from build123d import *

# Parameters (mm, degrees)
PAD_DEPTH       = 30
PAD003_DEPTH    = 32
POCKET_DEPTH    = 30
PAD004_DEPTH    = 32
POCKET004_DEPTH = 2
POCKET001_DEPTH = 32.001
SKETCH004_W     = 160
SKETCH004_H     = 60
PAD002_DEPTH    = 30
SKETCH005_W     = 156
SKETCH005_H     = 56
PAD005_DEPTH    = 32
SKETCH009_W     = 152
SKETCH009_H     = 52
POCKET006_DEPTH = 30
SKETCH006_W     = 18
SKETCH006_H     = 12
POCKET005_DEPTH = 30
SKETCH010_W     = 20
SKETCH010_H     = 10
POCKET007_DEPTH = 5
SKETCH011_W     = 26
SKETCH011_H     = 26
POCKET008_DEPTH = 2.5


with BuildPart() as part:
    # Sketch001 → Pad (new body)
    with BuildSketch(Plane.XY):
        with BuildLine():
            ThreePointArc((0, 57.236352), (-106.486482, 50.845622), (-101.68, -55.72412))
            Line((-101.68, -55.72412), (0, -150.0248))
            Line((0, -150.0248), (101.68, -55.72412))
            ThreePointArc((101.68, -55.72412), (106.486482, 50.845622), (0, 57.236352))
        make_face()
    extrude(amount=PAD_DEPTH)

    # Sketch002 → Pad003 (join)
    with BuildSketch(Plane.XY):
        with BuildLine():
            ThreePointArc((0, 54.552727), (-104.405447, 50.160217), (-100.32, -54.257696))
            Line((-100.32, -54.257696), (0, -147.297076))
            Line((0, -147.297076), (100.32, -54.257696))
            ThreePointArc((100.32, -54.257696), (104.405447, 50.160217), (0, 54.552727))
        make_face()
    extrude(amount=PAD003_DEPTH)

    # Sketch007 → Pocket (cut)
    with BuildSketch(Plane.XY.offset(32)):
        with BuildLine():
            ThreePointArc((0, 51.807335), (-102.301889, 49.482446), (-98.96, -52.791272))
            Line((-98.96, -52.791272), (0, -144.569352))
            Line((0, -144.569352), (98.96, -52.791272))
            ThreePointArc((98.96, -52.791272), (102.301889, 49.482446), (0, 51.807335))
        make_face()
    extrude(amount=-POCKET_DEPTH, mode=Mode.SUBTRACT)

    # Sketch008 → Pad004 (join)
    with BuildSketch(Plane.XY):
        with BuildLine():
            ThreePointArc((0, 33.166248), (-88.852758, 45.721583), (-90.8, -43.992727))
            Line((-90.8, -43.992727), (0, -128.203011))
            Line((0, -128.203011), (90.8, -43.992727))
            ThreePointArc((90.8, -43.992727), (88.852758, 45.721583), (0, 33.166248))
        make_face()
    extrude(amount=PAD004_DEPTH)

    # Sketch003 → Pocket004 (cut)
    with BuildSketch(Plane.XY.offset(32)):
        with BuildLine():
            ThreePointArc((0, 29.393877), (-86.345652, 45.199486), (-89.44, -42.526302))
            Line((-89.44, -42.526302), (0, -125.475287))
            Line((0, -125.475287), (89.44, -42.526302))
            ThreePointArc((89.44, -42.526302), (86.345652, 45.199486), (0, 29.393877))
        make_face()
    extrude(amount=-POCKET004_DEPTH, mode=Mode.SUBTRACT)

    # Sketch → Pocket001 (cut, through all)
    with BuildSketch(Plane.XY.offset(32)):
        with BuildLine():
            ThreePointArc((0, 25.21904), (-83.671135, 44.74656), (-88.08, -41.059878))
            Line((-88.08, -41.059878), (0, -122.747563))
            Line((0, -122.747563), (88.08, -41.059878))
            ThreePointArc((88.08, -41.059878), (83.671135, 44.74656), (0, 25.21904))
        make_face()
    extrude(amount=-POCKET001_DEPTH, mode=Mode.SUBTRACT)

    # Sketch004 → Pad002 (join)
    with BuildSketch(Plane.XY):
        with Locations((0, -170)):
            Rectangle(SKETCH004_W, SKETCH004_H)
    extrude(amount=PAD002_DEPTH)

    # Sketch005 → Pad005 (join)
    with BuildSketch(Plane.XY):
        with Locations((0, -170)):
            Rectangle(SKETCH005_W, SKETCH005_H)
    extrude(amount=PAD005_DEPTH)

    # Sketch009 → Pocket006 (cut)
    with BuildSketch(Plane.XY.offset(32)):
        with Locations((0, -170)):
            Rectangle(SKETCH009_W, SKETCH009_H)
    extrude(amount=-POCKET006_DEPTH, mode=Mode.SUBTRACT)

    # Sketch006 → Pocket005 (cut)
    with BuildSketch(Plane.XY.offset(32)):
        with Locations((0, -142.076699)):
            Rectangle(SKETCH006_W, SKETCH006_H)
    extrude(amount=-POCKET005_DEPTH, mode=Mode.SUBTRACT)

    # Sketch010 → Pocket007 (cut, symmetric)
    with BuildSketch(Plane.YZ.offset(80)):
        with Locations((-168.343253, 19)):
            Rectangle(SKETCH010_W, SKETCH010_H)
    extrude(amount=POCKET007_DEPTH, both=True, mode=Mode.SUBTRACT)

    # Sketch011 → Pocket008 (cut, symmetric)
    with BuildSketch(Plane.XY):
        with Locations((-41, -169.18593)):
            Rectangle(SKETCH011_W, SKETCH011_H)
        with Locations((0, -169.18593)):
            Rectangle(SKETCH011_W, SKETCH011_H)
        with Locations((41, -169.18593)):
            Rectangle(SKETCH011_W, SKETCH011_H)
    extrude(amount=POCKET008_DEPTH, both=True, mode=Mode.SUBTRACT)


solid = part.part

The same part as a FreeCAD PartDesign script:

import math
import FreeCAD as App
import Part
import Sketcher
from FreeCAD import Vector


def add_polygon(sketch, points):
    """Adds a closed chain of lines whose ends are joined by coincident constraints."""
    first, n = sketch.GeometryCount, len(points)
    for a, b in zip(points, points[1:] + points[:1]):
        sketch.addGeometry(Part.LineSegment(App.Vector(*a, 0), App.Vector(*b, 0)), False)
    for i in range(n):
        sketch.addConstraint(Sketcher.Constraint("Coincident", first + i, 2, first + (i + 1) % n, 1))

doc = App.newDocument("Part")
body = doc.addObject("PartDesign::Body", "Body")

sketch1 = doc.addObject("Sketcher::SketchObject", "Sketch")
body.addObject(sketch1)
sketch1.AttachmentSupport = (doc.XY_Plane, [""])
sketch1.MapMode = "FlatFace"
sketch1.addGeometry([
    Part.ArcOfCircle(Part.Circle(Vector(-50, 0, 0), Vector(0, 0, 1), 76), math.radians(49), math.radians(227)),
    Part.LineSegment(Vector(-102, -56, 0), Vector(0, -150, 0)),
    Part.LineSegment(Vector(0, -150, 0), Vector(102, -56, 0)),
    Part.ArcOfCircle(Part.Circle(Vector(50, 0, 0), Vector(0, 0, 1), 76), math.radians(-47), math.radians(131)),
], False)
sketch1.addConstraint([
    Sketcher.Constraint("Tangent", 0, 2, 1, 1),
    Sketcher.Constraint("Coincident", 1, 2, 2, 1),
    Sketcher.Constraint("Tangent", 2, 2, 3, 1),
    Sketcher.Constraint("Coincident", 3, 2, 0, 1),
    Sketcher.Constraint("Equal", 0, 3),
    Sketcher.Constraint("Symmetric", 0, 3, 3, 3, -1, 1),
    Sketcher.Constraint("Symmetric", 0, 2, 2, 2, -2),
    Sketcher.Constraint("Radius", 0, 76.0),
    Sketcher.Constraint("DistanceX", 0, 3, -1, 1, 50.0),
    Sketcher.Constraint("DistanceX", 0, 2, -1, 1, 101.68),
])
pad1 = doc.addObject("PartDesign::Pad", "Pad")
body.addObject(pad1)
pad1.Profile = sketch1
pad1.Length = 30

sketch2 = doc.addObject("Sketcher::SketchObject", "Sketch001")
body.addObject(sketch2)
sketch2.AttachmentSupport = (doc.XY_Plane, [""])
sketch2.MapMode = "FlatFace"
sketch2.addGeometry([
    Part.ArcOfCircle(Part.Circle(Vector(-50, 0, 0), Vector(0, 0, 1), 74), math.radians(47), math.radians(227)),
    Part.LineSegment(Vector(-100, -54, 0), Vector(0, -147, 0)),
    Part.LineSegment(Vector(0, -147, 0), Vector(100, -54, 0)),
    Part.ArcOfCircle(Part.Circle(Vector(50, 0, 0), Vector(0, 0, 1), 74), math.radians(-47), math.radians(133)),
], False)
sketch2.addConstraint([
    Sketcher.Constraint("Tangent", 0, 2, 1, 1),
    Sketcher.Constraint("Coincident", 1, 2, 2, 1),
    Sketcher.Constraint("Tangent", 2, 2, 3, 1),
    Sketcher.Constraint("Coincident", 3, 2, 0, 1),
    Sketcher.Constraint("Equal", 0, 3),
    Sketcher.Constraint("Symmetric", 0, 3, 3, 3, -1, 1),
    Sketcher.Constraint("Symmetric", 0, 2, 2, 2, -2),
    Sketcher.Constraint("Radius", 0, 74.0),
    Sketcher.Constraint("DistanceX", 0, 3, -1, 1, 50.0),
    Sketcher.Constraint("DistanceX", 0, 2, -1, 1, 100.32),
])
pad2 = doc.addObject("PartDesign::Pad", "Pad001")
body.addObject(pad2)
pad2.Profile = sketch2
pad2.Length = 32

sketch3 = doc.addObject("Sketcher::SketchObject", "Sketch002")
body.addObject(sketch3)
sketch3.AttachmentSupport = (doc.XY_Plane, [""])
sketch3.MapMode = "FlatFace"
sketch3.AttachmentOffset = App.Placement(Vector(0, 0, 32), App.Rotation())
sketch3.addGeometry([
    Part.ArcOfCircle(Part.Circle(Vector(-50, 0, 0), Vector(0, 0, 1), 72), math.radians(46), math.radians(227)),
    Part.LineSegment(Vector(-99, -53, 0), Vector(0, -145, 0)),
    Part.LineSegment(Vector(0, -145, 0), Vector(99, -53, 0)),
    Part.ArcOfCircle(Part.Circle(Vector(50, 0, 0), Vector(0, 0, 1), 72), math.radians(-47), math.radians(134)),
], False)
sketch3.addConstraint([
    Sketcher.Constraint("Tangent", 0, 2, 1, 1),
    Sketcher.Constraint("Coincident", 1, 2, 2, 1),
    Sketcher.Constraint("Tangent", 2, 2, 3, 1),
    Sketcher.Constraint("Coincident", 3, 2, 0, 1),
    Sketcher.Constraint("Equal", 0, 3),
    Sketcher.Constraint("Symmetric", 0, 3, 3, 3, -1, 1),
    Sketcher.Constraint("Symmetric", 0, 2, 2, 2, -2),
    Sketcher.Constraint("Radius", 0, 72.0),
    Sketcher.Constraint("DistanceX", 0, 3, -1, 1, 50.0),
    Sketcher.Constraint("DistanceX", 0, 2, -1, 1, 98.96),
])
pocket1 = doc.addObject("PartDesign::Pocket", "Pocket")
body.addObject(pocket1)
pocket1.Profile = sketch3
pocket1.Length = 30

sketch4 = doc.addObject("Sketcher::SketchObject", "Sketch003")
body.addObject(sketch4)
sketch4.AttachmentSupport = (doc.XY_Plane, [""])
sketch4.MapMode = "FlatFace"
sketch4.addGeometry([
    Part.ArcOfCircle(Part.Circle(Vector(-50, 0, 0), Vector(0, 0, 1), 60), math.radians(34), math.radians(227)),
    Part.LineSegment(Vector(-91, -44, 0), Vector(0, -128, 0)),
    Part.LineSegment(Vector(0, -128, 0), Vector(91, -44, 0)),
    Part.ArcOfCircle(Part.Circle(Vector(50, 0, 0), Vector(0, 0, 1), 60), math.radians(-47), math.radians(146)),
], False)
sketch4.addConstraint([
    Sketcher.Constraint("Tangent", 0, 2, 1, 1),
    Sketcher.Constraint("Coincident", 1, 2, 2, 1),
    Sketcher.Constraint("Tangent", 2, 2, 3, 1),
    Sketcher.Constraint("Coincident", 3, 2, 0, 1),
    Sketcher.Constraint("Equal", 0, 3),
    Sketcher.Constraint("Symmetric", 0, 3, 3, 3, -1, 1),
    Sketcher.Constraint("Symmetric", 0, 2, 2, 2, -2),
    Sketcher.Constraint("Radius", 0, 60.0),
    Sketcher.Constraint("DistanceX", 0, 3, -1, 1, 50.0),
    Sketcher.Constraint("DistanceX", 0, 2, -1, 1, 90.8),
])
pad3 = doc.addObject("PartDesign::Pad", "Pad002")
body.addObject(pad3)
pad3.Profile = sketch4
pad3.Length = 32

sketch5 = doc.addObject("Sketcher::SketchObject", "Sketch004")
body.addObject(sketch5)
sketch5.AttachmentSupport = (doc.XY_Plane, [""])
sketch5.MapMode = "FlatFace"
sketch5.AttachmentOffset = App.Placement(Vector(0, 0, 32), App.Rotation())
sketch5.addGeometry([
    Part.ArcOfCircle(Part.Circle(Vector(-50, 0, 0), Vector(0, 0, 1), 58), math.radians(30), math.radians(227)),
    Part.LineSegment(Vector(-89, -43, 0), Vector(0, -125, 0)),
    Part.LineSegment(Vector(0, -125, 0), Vector(89, -43, 0)),
    Part.ArcOfCircle(Part.Circle(Vector(50, 0, 0), Vector(0, 0, 1), 58), math.radians(-47), math.radians(150)),
], False)
sketch5.addConstraint([
    Sketcher.Constraint("Tangent", 0, 2, 1, 1),
    Sketcher.Constraint("Coincident", 1, 2, 2, 1),
    Sketcher.Constraint("Tangent", 2, 2, 3, 1),
    Sketcher.Constraint("Coincident", 3, 2, 0, 1),
    Sketcher.Constraint("Equal", 0, 3),
    Sketcher.Constraint("Symmetric", 0, 3, 3, 3, -1, 1),
    Sketcher.Constraint("Symmetric", 0, 2, 2, 2, -2),
    Sketcher.Constraint("Radius", 0, 58.0),
    Sketcher.Constraint("DistanceX", 0, 3, -1, 1, 50.0),
    Sketcher.Constraint("DistanceX", 0, 2, -1, 1, 89.44),
])
pocket2 = doc.addObject("PartDesign::Pocket", "Pocket001")
body.addObject(pocket2)
pocket2.Profile = sketch5
pocket2.Length = 2

sketch6 = doc.addObject("Sketcher::SketchObject", "Sketch005")
body.addObject(sketch6)
sketch6.AttachmentSupport = (doc.XY_Plane, [""])
sketch6.MapMode = "FlatFace"
sketch6.AttachmentOffset = App.Placement(Vector(0, 0, 32), App.Rotation())
sketch6.addGeometry([
    Part.ArcOfCircle(Part.Circle(Vector(-50, 0, 0), Vector(0, 0, 1), 56), math.radians(27), math.radians(227)),
    Part.LineSegment(Vector(-88, -41, 0), Vector(0, -123, 0)),
    Part.LineSegment(Vector(0, -123, 0), Vector(88, -41, 0)),
    Part.ArcOfCircle(Part.Circle(Vector(50, 0, 0), Vector(0, 0, 1), 56), math.radians(-47), math.radians(153)),
], False)
sketch6.addConstraint([
    Sketcher.Constraint("Tangent", 0, 2, 1, 1),
    Sketcher.Constraint("Coincident", 1, 2, 2, 1),
    Sketcher.Constraint("Tangent", 2, 2, 3, 1),
    Sketcher.Constraint("Coincident", 3, 2, 0, 1),
    Sketcher.Constraint("Equal", 0, 3),
    Sketcher.Constraint("Symmetric", 0, 3, 3, 3, -1, 1),
    Sketcher.Constraint("Symmetric", 0, 2, 2, 2, -2),
    Sketcher.Constraint("Radius", 0, 56.0),
    Sketcher.Constraint("DistanceX", 0, 3, -1, 1, 50.0),
    Sketcher.Constraint("DistanceX", 0, 2, -1, 1, 88.08),
])
pocket3 = doc.addObject("PartDesign::Pocket", "Pocket002")
body.addObject(pocket3)
pocket3.Profile = sketch6
pocket3.Type = "ThroughAll"

sketch7 = doc.addObject("Sketcher::SketchObject", "Sketch006")
body.addObject(sketch7)
sketch7.AttachmentSupport = (doc.XY_Plane, [""])
sketch7.MapMode = "FlatFace"
add_polygon(sketch7, [(-80, -140), (-80, -200), (80, -200), (80, -140)])
sketch7.addConstraint([
    Sketcher.Constraint("Vertical", 0),
    Sketcher.Constraint("Horizontal", 1),
    Sketcher.Constraint("Vertical", 2),
    Sketcher.Constraint("Horizontal", 3),
    Sketcher.Constraint("DistanceX", 1, 1, 1, 2, 160.0),
    Sketcher.Constraint("DistanceY", 0, 2, 0, 1, 60.0),
    Sketcher.Constraint("DistanceX", 0, 2, -1, 1, 80.0),
    Sketcher.Constraint("DistanceY", 0, 2, -1, 1, 200.0),
])
pad4 = doc.addObject("PartDesign::Pad", "Pad003")
body.addObject(pad4)
pad4.Profile = sketch7
pad4.Length = 30

sketch8 = doc.addObject("Sketcher::SketchObject", "Sketch007")
body.addObject(sketch8)
sketch8.AttachmentSupport = (doc.XY_Plane, [""])
sketch8.MapMode = "FlatFace"
add_polygon(sketch8, [(-78, -142), (-78, -198), (78, -198), (78, -142)])
sketch8.addConstraint([
    Sketcher.Constraint("Vertical", 0),
    Sketcher.Constraint("Horizontal", 1),
    Sketcher.Constraint("Vertical", 2),
    Sketcher.Constraint("Horizontal", 3),
    Sketcher.Constraint("DistanceX", 1, 1, 1, 2, 156.0),
    Sketcher.Constraint("DistanceY", 0, 2, 0, 1, 56.0),
    Sketcher.Constraint("DistanceX", 0, 2, -1, 1, 78.0),
    Sketcher.Constraint("DistanceY", 0, 2, -1, 1, 198.0),
])
pad5 = doc.addObject("PartDesign::Pad", "Pad004")
body.addObject(pad5)
pad5.Profile = sketch8
pad5.Length = 32

sketch9 = doc.addObject("Sketcher::SketchObject", "Sketch008")
body.addObject(sketch9)
sketch9.AttachmentSupport = (doc.XY_Plane, [""])
sketch9.MapMode = "FlatFace"
sketch9.AttachmentOffset = App.Placement(Vector(0, 0, 32), App.Rotation())
add_polygon(sketch9, [(-76, -144), (-76, -196), (76, -196), (76, -144)])
sketch9.addConstraint([
    Sketcher.Constraint("Vertical", 0),
    Sketcher.Constraint("Horizontal", 1),
    Sketcher.Constraint("Vertical", 2),
    Sketcher.Constraint("Horizontal", 3),
    Sketcher.Constraint("DistanceX", 1, 1, 1, 2, 152.0),
    Sketcher.Constraint("DistanceY", 0, 2, 0, 1, 52.0),
    Sketcher.Constraint("DistanceX", 0, 2, -1, 1, 76.0),
    Sketcher.Constraint("DistanceY", 0, 2, -1, 1, 196.0),
])
pocket4 = doc.addObject("PartDesign::Pocket", "Pocket003")
body.addObject(pocket4)
pocket4.Profile = sketch9
pocket4.Length = 30

sketch10 = doc.addObject("Sketcher::SketchObject", "Sketch009")
body.addObject(sketch10)
sketch10.AttachmentSupport = (doc.XY_Plane, [""])
sketch10.MapMode = "FlatFace"
sketch10.AttachmentOffset = App.Placement(Vector(0, 0, 32), App.Rotation())
add_polygon(sketch10, [(-9, -136), (-9, -148), (9, -148), (9, -136)])
sketch10.addConstraint([
    Sketcher.Constraint("Vertical", 0),
    Sketcher.Constraint("Horizontal", 1),
    Sketcher.Constraint("Vertical", 2),
    Sketcher.Constraint("Horizontal", 3),
    Sketcher.Constraint("DistanceX", 1, 1, 1, 2, 18.0),
    Sketcher.Constraint("DistanceY", 0, 2, 0, 1, 12.0),
    Sketcher.Constraint("DistanceX", 0, 2, -1, 1, 9.0),
    Sketcher.Constraint("DistanceY", 0, 2, -1, 1, 148.076699),
])
pocket5 = doc.addObject("PartDesign::Pocket", "Pocket004")
body.addObject(pocket5)
pocket5.Profile = sketch10
pocket5.Length = 30

sketch11 = doc.addObject("Sketcher::SketchObject", "Sketch010")
body.addObject(sketch11)
sketch11.AttachmentSupport = (doc.YZ_Plane, [""])
sketch11.MapMode = "FlatFace"
sketch11.AttachmentOffset = App.Placement(Vector(0, 0, 80), App.Rotation())
add_polygon(sketch11, [(-178, 24), (-178, 14), (-158, 14), (-158, 24)])
sketch11.addConstraint([
    Sketcher.Constraint("Vertical", 0),
    Sketcher.Constraint("Horizontal", 1),
    Sketcher.Constraint("Vertical", 2),
    Sketcher.Constraint("Horizontal", 3),
    Sketcher.Constraint("DistanceX", 1, 1, 1, 2, 20.0),
    Sketcher.Constraint("DistanceY", 0, 2, 0, 1, 10.0),
    Sketcher.Constraint("DistanceY", -1, 1, 0, 2, 14.0),
    Sketcher.Constraint("DistanceX", 0, 2, -1, 1, 178.343253),
])
pocket6 = doc.addObject("PartDesign::Pocket", "Pocket005")
body.addObject(pocket6)
pocket6.Profile = sketch11
pocket6.Length = 10
pocket6.Midplane = True

sketch12 = doc.addObject("Sketcher::SketchObject", "Sketch011")
body.addObject(sketch12)
sketch12.AttachmentSupport = (doc.XY_Plane, [""])
sketch12.MapMode = "FlatFace"
add_polygon(sketch12, [(-54, -156), (-54, -182), (-28, -182), (-28, -156)])
add_polygon(sketch12, [(-13, -156), (-13, -182), (13, -182), (13, -156)])
add_polygon(sketch12, [(28, -156), (28, -182), (54, -182), (54, -156)])
sketch12.addConstraint([
    Sketcher.Constraint("Vertical", 0),
    Sketcher.Constraint("Horizontal", 1),
    Sketcher.Constraint("Vertical", 2),
    Sketcher.Constraint("Horizontal", 3),
    Sketcher.Constraint("Vertical", 4),
    Sketcher.Constraint("Horizontal", 5),
    Sketcher.Constraint("Vertical", 6),
    Sketcher.Constraint("Horizontal", 7),
    Sketcher.Constraint("Vertical", 8),
    Sketcher.Constraint("Horizontal", 9),
    Sketcher.Constraint("Vertical", 10),
    Sketcher.Constraint("Horizontal", 11),
    Sketcher.Constraint("Symmetric", 1, 2, 8, 2, -2),
    Sketcher.Constraint("Symmetric", 3, 2, 10, 2, -2),
    Sketcher.Constraint("Horizontal", 1, 2, 4, 2),
    Sketcher.Constraint("Horizontal", 3, 2, 6, 2),
    Sketcher.Constraint("Equal", 3, 5),
    Sketcher.Constraint("Equal", 11, 0),
    Sketcher.Constraint("DistanceX", 1, 1, 1, 2, 26.0),
    Sketcher.Constraint("DistanceX", 0, 2, -1, 1, 54.0),
    Sketcher.Constraint("DistanceX", 4, 2, -1, 1, 13.0),
    Sketcher.Constraint("DistanceY", 0, 2, -1, 1, 182.18593),
])
pocket7 = doc.addObject("PartDesign::Pocket", "Pocket006")
body.addObject(pocket7)
pocket7.Profile = sketch12
pocket7.Length = 5
pocket7.Midplane = True

doc.recompute()
